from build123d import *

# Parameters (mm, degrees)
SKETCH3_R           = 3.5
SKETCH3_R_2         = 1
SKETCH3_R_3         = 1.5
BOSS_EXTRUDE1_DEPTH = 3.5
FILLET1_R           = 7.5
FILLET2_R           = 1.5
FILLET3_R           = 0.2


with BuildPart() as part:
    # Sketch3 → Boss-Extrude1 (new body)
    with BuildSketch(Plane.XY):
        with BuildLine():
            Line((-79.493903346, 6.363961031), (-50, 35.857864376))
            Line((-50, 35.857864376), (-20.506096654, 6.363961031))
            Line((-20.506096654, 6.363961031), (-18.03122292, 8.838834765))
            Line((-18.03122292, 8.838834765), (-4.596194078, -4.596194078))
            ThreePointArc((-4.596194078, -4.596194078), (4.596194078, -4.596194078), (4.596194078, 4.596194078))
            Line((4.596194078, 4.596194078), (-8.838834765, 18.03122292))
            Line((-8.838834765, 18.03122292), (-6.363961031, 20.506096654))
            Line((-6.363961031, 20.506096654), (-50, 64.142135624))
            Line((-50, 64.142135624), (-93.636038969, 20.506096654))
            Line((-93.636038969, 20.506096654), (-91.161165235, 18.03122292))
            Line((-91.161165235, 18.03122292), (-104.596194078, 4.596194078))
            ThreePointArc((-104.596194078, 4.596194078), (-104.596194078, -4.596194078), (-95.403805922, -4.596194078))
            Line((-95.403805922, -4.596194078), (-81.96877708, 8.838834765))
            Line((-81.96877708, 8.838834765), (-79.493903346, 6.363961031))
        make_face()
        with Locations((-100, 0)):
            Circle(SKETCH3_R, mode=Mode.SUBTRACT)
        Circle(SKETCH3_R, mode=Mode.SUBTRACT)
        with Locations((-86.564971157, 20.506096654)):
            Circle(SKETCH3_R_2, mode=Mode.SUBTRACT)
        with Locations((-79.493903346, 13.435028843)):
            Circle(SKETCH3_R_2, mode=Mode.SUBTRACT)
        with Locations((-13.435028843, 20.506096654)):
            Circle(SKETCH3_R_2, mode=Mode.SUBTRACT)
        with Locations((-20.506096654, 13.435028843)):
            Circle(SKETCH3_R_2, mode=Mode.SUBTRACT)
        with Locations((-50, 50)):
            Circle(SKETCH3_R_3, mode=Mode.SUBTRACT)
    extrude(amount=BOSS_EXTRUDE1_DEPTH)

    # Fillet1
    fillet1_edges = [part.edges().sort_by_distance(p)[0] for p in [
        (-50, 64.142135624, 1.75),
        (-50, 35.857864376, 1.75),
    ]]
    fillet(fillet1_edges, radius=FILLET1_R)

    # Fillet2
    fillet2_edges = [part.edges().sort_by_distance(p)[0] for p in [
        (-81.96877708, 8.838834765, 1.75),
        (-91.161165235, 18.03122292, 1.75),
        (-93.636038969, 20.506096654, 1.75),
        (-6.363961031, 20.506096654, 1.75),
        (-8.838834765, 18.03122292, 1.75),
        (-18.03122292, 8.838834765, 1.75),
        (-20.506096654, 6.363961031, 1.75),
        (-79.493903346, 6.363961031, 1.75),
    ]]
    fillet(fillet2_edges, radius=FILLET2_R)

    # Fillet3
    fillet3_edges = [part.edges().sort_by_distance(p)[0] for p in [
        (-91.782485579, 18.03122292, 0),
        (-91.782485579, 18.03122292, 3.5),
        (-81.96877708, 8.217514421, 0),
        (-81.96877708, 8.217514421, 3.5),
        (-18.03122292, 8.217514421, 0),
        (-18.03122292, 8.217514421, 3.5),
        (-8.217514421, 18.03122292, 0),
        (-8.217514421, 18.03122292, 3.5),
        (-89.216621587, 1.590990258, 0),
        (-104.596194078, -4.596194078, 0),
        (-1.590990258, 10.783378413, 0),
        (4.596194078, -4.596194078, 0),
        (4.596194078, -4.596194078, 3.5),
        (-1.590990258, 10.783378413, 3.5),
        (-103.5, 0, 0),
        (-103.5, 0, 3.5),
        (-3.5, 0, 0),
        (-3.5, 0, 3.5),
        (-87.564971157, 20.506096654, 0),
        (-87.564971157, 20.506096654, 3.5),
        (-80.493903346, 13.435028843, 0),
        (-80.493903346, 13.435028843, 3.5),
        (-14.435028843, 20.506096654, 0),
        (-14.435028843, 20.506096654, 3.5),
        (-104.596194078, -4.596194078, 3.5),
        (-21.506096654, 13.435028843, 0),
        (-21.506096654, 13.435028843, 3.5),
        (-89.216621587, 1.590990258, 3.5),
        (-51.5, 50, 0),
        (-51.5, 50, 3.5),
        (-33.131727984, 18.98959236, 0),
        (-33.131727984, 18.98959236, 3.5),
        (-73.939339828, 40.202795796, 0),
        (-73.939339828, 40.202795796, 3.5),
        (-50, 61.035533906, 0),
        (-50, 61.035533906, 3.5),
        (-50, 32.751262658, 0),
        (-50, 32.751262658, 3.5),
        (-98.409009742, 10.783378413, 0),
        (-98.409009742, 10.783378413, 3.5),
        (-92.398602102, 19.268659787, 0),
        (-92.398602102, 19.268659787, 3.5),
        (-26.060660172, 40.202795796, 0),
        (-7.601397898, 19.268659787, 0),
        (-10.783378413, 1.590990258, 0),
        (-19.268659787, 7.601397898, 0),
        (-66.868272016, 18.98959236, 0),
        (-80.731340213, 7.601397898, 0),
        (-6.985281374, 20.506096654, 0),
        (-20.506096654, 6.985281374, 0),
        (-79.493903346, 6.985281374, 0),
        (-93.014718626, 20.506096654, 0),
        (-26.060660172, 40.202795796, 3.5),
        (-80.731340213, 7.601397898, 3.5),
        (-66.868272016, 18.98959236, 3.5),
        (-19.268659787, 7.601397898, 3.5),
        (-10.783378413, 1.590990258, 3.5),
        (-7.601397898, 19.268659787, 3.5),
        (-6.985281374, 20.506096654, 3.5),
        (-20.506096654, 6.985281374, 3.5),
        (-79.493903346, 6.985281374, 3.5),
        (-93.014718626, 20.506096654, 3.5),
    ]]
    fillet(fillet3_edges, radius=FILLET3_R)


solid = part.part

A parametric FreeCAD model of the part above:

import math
import FreeCAD as App
import Part
import Sketcher

V = App.Vector
Q = App.Units.Quantity


def edges_at(feature, points):
    """Names of the edges that pass closest to the given points."""
    edges = feature.Shape.Edges
    near = lambda p: min(range(len(edges)), key=lambda i: edges[i].distToShape(Part.Vertex(*p))[0])
    return sorted({f"Edge{near(p) + 1}" for p in points})

doc = App.newDocument("Part")
body = doc.addObject("PartDesign::Body", "Body")

sketch1 = doc.addObject("Sketcher::SketchObject", "Sketch")
body.addObject(sketch1)
sketch1.AttachmentSupport = (doc.XY_Plane, [""])
sketch1.MapMode = "FlatFace"
sketch1.addGeometry([
    Part.LineSegment(V(-79.493903, 6.363961, 0), V(-50, 35.857864, 0)),
    Part.LineSegment(V(-50, 35.857864, 0), V(-20.506097, 6.363961, 0)),
    Part.LineSegment(V(-20.506097, 6.363961, 0), V(-18.031223, 8.838835, 0)),
    Part.LineSegment(V(-18.031223, 8.838835, 0), V(-4.596194, -4.596194, 0)),
    Part.ArcOfCircle(Part.Circle(V(0, 0, 0), V(0, 0, 1), 6.5), math.radians(-135), math.radians(45)),
    Part.LineSegment(V(4.596194, 4.596194, 0), V(-8.838835, 18.031223, 0)),
    Part.LineSegment(V(-8.838835, 18.031223, 0), V(-6.363961, 20.506097, 0)),
    Part.LineSegment(V(-6.363961, 20.506097, 0), V(-50, 64.142136, 0)),
    Part.LineSegment(V(-50, 64.142136, 0), V(-93.636039, 20.506097, 0)),
    Part.LineSegment(V(-93.636039, 20.506097, 0), V(-91.161165, 18.031223, 0)),
    Part.LineSegment(V(-91.161165, 18.031223, 0), V(-104.596194, 4.596194, 0)),
    Part.ArcOfCircle(Part.Circle(V(-100, 0, 0), V(0, 0, 1), 6.5), math.radians(135), math.radians(315)),
    Part.LineSegment(V(-95.403806, -4.596194, 0), V(-81.968777, 8.838835, 0)),
    Part.LineSegment(V(-81.968777, 8.838835, 0), V(-79.493903, 6.363961, 0)),
    Part.Circle(V(-100, 0, 0), V(0, 0, 1), 3.5),
    Part.Circle(V(-79.493903, 13.435029, 0), V(0, 0, 1), 1),
    Part.Circle(V(-86.564971, 20.506097, 0), V(0, 0, 1), 1),
    Part.Circle(V(0, 0, 0), V(0, 0, 1), 3.5),
    Part.Circle(V(-20.506097, 13.435029, 0), V(0, 0, 1), 1),
    Part.Circle(V(-13.435029, 20.506097, 0), V(0, 0, 1), 1),
    Part.Circle(V(-50, 50, 0), V(0, 0, 1), 1.5),
], False)
sketch1.addConstraint([
    Sketcher.Constraint("Coincident", 0, 2, 1, 1),
    Sketcher.Constraint("Coincident", 1, 2, 2, 1),
    Sketcher.Constraint("Coincident", 2, 2, 3, 1),
    Sketcher.Constraint("Tangent", 3, 2, 4, 1),
    Sketcher.Constraint("Tangent", 4, 2, 5, 1),
    Sketcher.Constraint("Coincident", 5, 2, 6, 1),
    Sketcher.Constraint("Coincident", 6, 2, 7, 1),
    Sketcher.Constraint("Coincident", 7, 2, 8, 1),
    Sketcher.Constraint("Coincident", 8, 2, 9, 1),
    Sketcher.Constraint("Coincident", 9, 2, 10, 1),
    Sketcher.Constraint("Tangent", 10, 2, 11, 1),
    Sketcher.Constraint("Tangent", 11, 2, 12, 1),
    Sketcher.Constraint("Coincident", 12, 2, 13, 1),
    Sketcher.Constraint("Coincident", 13, 2, 0, 1),
    Sketcher.Constraint("Coincident", 4, 3, -1, 1),
    Sketcher.Constraint("Coincident", 17, 3, -1, 1),
    Sketcher.Constraint("Coincident", 14, 3, 11, 3),
    Sketcher.Constraint("Equal", 4, 11),
    Sketcher.Constraint("Equal", 15, 16),
    Sketcher.Constraint("Equal", 14, 17),
    Sketcher.Constraint("Equal", 16, 18),
    Sketcher.Constraint("Equal", 18, 19),
    Sketcher.Constraint("PointOnObject", 11, 3, -1),
    Sketcher.Constraint("Perpendicular", 0, 1),
    Sketcher.Constraint("Perpendicular", 1, 2),
    Sketcher.Constraint("Perpendicular", 2, 3),
    Sketcher.Constraint("Parallel", 3, 5),
    Sketcher.Constraint("Perpendicular", 5, 6),
    Sketcher.Constraint("Perpendicular", 6, 7),
    Sketcher.Constraint("Perpendicular", 7, 8),
    Sketcher.Constraint("Perpendicular", 8, 9),
    Sketcher.Constraint("Perpendicular", 9, 10),
    Sketcher.Constraint("Parallel", 10, 12),
    Sketcher.Constraint("Perpendicular", 12, 13),
    Sketcher.Constraint("Horizontal", 15, 3, 18, 3),
    Sketcher.Constraint("Horizontal", 16, 3, 19, 3),
    Sketcher.Constraint("Horizontal", 19, 3, 6, 2),
    Sketcher.Constraint("Horizontal", 6, 2, 8, 2),
    Sketcher.Constraint("Horizontal", 5, 2, 9, 2),
    Sketcher.Constraint("Horizontal", 4, 2, 10, 2),
    Sketcher.Constraint("Horizontal", 2, 2, 12, 2),
    Sketcher.Constraint("Horizontal", 1, 2, 13, 2),
    Sketcher.Constraint("Vertical", 20, 3, 0, 2),
    Sketcher.Constraint("Vertical", 18, 3, 1, 2),
    Sketcher.Constraint("Vertical", 15, 3, 13, 2),
    Sketcher.Constraint("Equal", 3, 5),
    Sketcher.Constraint("Equal", 2, 6),
    Sketcher.Constraint("Diameter", 14, Q("7 mm")),
    Sketcher.Constraint("Diameter", 15, Q("2 mm")),
    Sketcher.Constraint("Diameter", 20, Q("3 mm")),
    Sketcher.Constraint("Radius", 4, Q("6.5 mm")),
    Sketcher.Constraint("Distance", 3, Q("19 mm")),
    Sketcher.Constraint("DistanceX", 11, 3, -1, 1, Q("100 mm")),
    Sketcher.Constraint("DistanceY", -1, 1, 20, 3, Q("50 mm")),
    Sketcher.Constraint("Distance", 2, Q("3.5 mm")),
    Sketcher.Constraint("DistanceY", -1, 1, 15, 3, Q("13.435029 mm")),
    Sketcher.Constraint("DistanceX", 16, 3, -1, 1, Q("86.564971 mm")),
    Sketcher.Constraint("DistanceX", 19, 3, -1, 1, Q("13.435029 mm")),
])
pad1 = doc.addObject("PartDesign::Pad", "Pad")
body.addObject(pad1)
pad1.Profile = sketch1
pad1.Length = 3.5
doc.recompute()

fillet = doc.addObject("PartDesign::Fillet", "Fillet")
body.addObject(fillet)
fillet.Base = (pad1, edges_at(pad1, [(-50, 64.142, 1.75), (-50, 35.858, 1.75)]))
fillet.Radius = 7.5
doc.recompute()

fillet2 = doc.addObject("PartDesign::Fillet", "Fillet001")
body.addObject(fillet2)
fillet2.Base = (fillet, edges_at(fillet, [
    (-81.969, 8.839, 1.75),
    (-91.161, 18.031, 1.75),
    (-93.636, 20.506, 1.75),
    (-6.364, 20.506, 1.75),
    (-8.839, 18.031, 1.75),
    (-18.031, 8.839, 1.75),
    (-20.506, 6.364, 1.75),
    (-79.494, 6.364, 1.75),
]))
fillet2.Radius = 1.5
doc.recompute()

fillet3 = doc.addObject("PartDesign::Fillet", "Fillet002")
body.addObject(fillet3)
fillet3.Base = (fillet2, edges_at(fillet2, [
    (-91.782, 18.031, 0),
    (-91.782, 18.031, 3.5),
    (-81.969, 8.218, 0),
    (-81.969, 8.218, 3.5),
    (-18.031, 8.218, 0),
    (-18.031, 8.218, 3.5),
    (-8.218, 18.031, 0),
    (-8.218, 18.031, 3.5),
    (-89.217, 1.591, 0),
    (-104.596, -4.596, 0),
    (-1.591, 10.783, 0),
    (4.596, -4.596, 0),
    (4.596, -4.596, 3.5),
    (-1.591, 10.783, 3.5),
    (-103.5, 0, 0),
    (-103.5, 0, 3.5),
    (-3.5, 0, 0),
    (-3.5, 0, 3.5),
    (-87.565, 20.506, 0),
    (-87.565, 20.506, 3.5),
    (-80.494, 13.435, 0),
    (-80.494, 13.435, 3.5),
    (-14.435, 20.506, 0),
    (-14.435, 20.506, 3.5),
    (-104.596, -4.596, 3.5),
    (-21.506, 13.435, 0),
    (-21.506, 13.435, 3.5),
    (-89.217, 1.591, 3.5),
    (-51.5, 50, 0),
    (-51.5, 50, 3.5),
    (-33.132, 18.99, 0),
    (-33.132, 18.99, 3.5),
    (-73.939, 40.203, 0),
    (-73.939, 40.203, 3.5),
    (-50, 61.036, 0),
    (-50, 61.036, 3.5),
    (-50, 32.751, 0),
    (-50, 32.751, 3.5),
    (-98.409, 10.783, 0),
    (-98.409, 10.783, 3.5),
    (-92.399, 19.269, 0),
    (-92.399, 19.269, 3.5),
    (-26.061, 40.203, 0),
    (-7.601, 19.269, 0),
    (-10.783, 1.591, 0),
    (-19.269, 7.601, 0),
    (-66.868, 18.99, 0),
    (-80.731, 7.601, 0),
    (-6.985, 20.506, 0),
    (-20.506, 6.985, 0),
    (-79.494, 6.985, 0),
    (-93.015, 20.506, 0),
    (-26.061, 40.203, 3.5),
    (-80.731, 7.601, 3.5),
    (-66.868, 18.99, 3.5),
    (-19.269, 7.601, 3.5),
    (-10.783, 1.591, 3.5),
    (-7.601, 19.269, 3.5),
    (-6.985, 20.506, 3.5),
    (-20.506, 6.985, 3.5),
    (-79.494, 6.985, 3.5),
    (-93.015, 20.506, 3.5),
]))
fillet3.Radius = 0.2

doc.recompute()
